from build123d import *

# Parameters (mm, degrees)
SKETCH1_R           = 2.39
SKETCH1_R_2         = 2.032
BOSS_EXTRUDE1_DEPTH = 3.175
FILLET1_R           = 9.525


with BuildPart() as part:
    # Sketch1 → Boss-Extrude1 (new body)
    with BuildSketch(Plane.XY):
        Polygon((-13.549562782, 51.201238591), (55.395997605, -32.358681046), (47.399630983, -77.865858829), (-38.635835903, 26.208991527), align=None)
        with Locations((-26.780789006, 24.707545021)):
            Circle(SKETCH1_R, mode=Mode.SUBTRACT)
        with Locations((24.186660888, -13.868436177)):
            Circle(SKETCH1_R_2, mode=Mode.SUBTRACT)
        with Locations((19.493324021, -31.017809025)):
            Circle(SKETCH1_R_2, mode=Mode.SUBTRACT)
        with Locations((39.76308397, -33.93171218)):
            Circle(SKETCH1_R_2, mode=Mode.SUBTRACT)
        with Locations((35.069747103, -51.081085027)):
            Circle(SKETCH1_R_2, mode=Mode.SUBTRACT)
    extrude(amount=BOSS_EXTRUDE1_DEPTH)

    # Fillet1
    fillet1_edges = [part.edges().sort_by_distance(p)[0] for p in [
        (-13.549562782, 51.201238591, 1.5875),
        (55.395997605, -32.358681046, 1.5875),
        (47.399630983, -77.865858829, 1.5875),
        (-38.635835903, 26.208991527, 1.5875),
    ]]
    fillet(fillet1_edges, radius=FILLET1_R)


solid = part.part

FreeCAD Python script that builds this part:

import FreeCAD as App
import Part
import Sketcher

V = App.Vector
Q = App.Units.Quantity


def edges_at(feature, points):
    """Names of the edges that pass closest to the given points."""
    edges = feature.Shape.Edges
    near = lambda p: min(range(len(edges)), key=lambda i: edges[i].distToShape(Part.Vertex(*p))[0])
    return sorted({f"Edge{near(p) + 1}" for p in points})


def add_polygon(sketch, points):
    """Adds a closed chain of lines whose ends are joined by coincident constraints."""
    first, n = sketch.GeometryCount, len(points)
    for a, b in zip(points, points[1:] + points[:1]):
        sketch.addGeometry(Part.LineSegment(App.Vector(*a, 0), App.Vector(*b, 0)), False)
    for i in range(n):
        sketch.addConstraint(Sketcher.Constraint("Coincident", first + i, 2, first + (i + 1) % n, 1))

doc = App.newDocument("Part")
params = doc.addObject("Spreadsheet::Sheet", "Params")
for row, (alias, value) in enumerate([
    ("sketch1_diameter", "0.16 in"),
    ("pad1_length", "0.125 in"),
    ("fillet_radius", "0.375 in"),
], start=1):
    params.set(f"A{row}", alias)
    params.set(f"B{row}", "=" + value)
    params.setAlias(f"B{row}", alias)

body = doc.addObject("PartDesign::Body", "Body")

sketch1 = body.newObject("Sketcher::SketchObject", "Sketch")
sketch1.AttachmentSupport = (doc.getObject("XY_Plane"), [""])
sketch1.MapMode = "FlatFace"
add_polygon(sketch1, [(55.4, -32.4), (-13.5, 51.2), (-38.6, 26.2), (47.4, -77.9)])
sketch1.addGeometry(Part.Circle(V(35.1, -51.1, 0), V(0, 0, 1), 2), False)
sketch1.addGeometry(Part.Circle(V(39.8, -33.9, 0), V(0, 0, 1), 2), False)
sketch1.addGeometry(Part.Circle(V(24.2, -13.9, 0), V(0, 0, 1), 2), False)
sketch1.addGeometry(Part.Circle(V(19.5, -31, 0), V(0, 0, 1), 2), False)
sketch1.addGeometry(Part.Circle(V(-26.8, 24.7, 0), V(0, 0, 1), 2.4), False)
sketch1.addConstraint(Sketcher.Constraint("Equal", 4, 5))
sketch1.addConstraint(Sketcher.Constraint("Equal", 5, 6))
sketch1.addConstraint(Sketcher.Constraint("Equal", 6, 7))
sketch1.addConstraint(Sketcher.Constraint("Diameter", 4, Q("0.16 in")))
sketch1.addConstraint(Sketcher.Constraint("Diameter", 8, Q("4.78 mm")))
sketch1.addConstraint(Sketcher.Constraint("DistanceY", 7, 3, 1, 2, Q("57.226801 mm")))
sketch1.addConstraint(Sketcher.Constraint("Distance", 0, Q("108.331669 mm")))
sketch1.addConstraint(Sketcher.Constraint("Distance", 2, Q("135.03213 mm")))
sketch1.addConstraint(Sketcher.Constraint("DistanceX", -1, 1, 6, 3, Q("24.186661 mm")))
sketch1.addConstraint(Sketcher.Constraint("DistanceY", 7, 3, -1, 1, Q("31.017809 mm")))
sketch1.addConstraint(Sketcher.Constraint("DistanceX", 8, 3, -1, 1, Q("26.780789 mm")))
sketch1.addConstraint(Sketcher.Constraint("DistanceY", -1, 1, 0, 2, Q("51.201239 mm")))
sketch1.addConstraint(Sketcher.Constraint("DistanceX", -1, 1, 2, 2, Q("47.399631 mm")))
sketch1.addConstraint(Sketcher.Constraint("DistanceY", 2, 2, -1, 1, Q("77.865859 mm")))
sketch1.addConstraint(Sketcher.Constraint("DistanceY", 3, 2, -1, 1, Q("32.358681 mm")))
sketch1.addConstraint(Sketcher.Constraint("DistanceY", 4, 3, 6, 3, Q("37.212649 mm")))
sketch1.addConstraint(Sketcher.Constraint("DistanceX", 7, 3, 5, 3, Q("20.26976 mm")))
sketch1.addConstraint(Sketcher.Constraint("DistanceY", 6, 3, 8, 3, Q("38.575981 mm")))
sketch1.addConstraint(Sketcher.Constraint("DistanceY", 5, 3, 0, 2, Q("85.132951 mm")))
sketch1.addConstraint(Sketcher.Constraint("DistanceX", 0, 2, 4, 3, Q("48.61931 mm")))
sketch1.addConstraint(Sketcher.Constraint("DistanceX", 1, 2, 7, 3, Q("58.12916 mm")))
sketch1.addConstraint(Sketcher.Constraint("Distance", 1, Q("35.410924 mm")))
sketch1.addConstraint(Sketcher.Constraint("DistanceY", 4, 3, -1, 1, Q("51.081085 mm")))
sketch1.setExpression("Constraints[7]", "Params.sketch1_diameter")
pad1 = body.newObject("PartDesign::Pad", "Pad")
pad1.Profile = sketch1
pad1.setExpression("Length", "Params.pad1_length")
doc.recompute()

fillet = body.newObject("PartDesign::Fillet", "Fillet")
fillet.Base = (pad1, edges_at(pad1, [
    (-13.55, 51.201, 1.587),
    (55.396, -32.359, 1.587),
    (47.4, -77.866, 1.587),
    (-38.636, 26.209, 1.587),
]))
fillet.setExpression("Radius", "Params.fillet_radius")

doc.recompute()
